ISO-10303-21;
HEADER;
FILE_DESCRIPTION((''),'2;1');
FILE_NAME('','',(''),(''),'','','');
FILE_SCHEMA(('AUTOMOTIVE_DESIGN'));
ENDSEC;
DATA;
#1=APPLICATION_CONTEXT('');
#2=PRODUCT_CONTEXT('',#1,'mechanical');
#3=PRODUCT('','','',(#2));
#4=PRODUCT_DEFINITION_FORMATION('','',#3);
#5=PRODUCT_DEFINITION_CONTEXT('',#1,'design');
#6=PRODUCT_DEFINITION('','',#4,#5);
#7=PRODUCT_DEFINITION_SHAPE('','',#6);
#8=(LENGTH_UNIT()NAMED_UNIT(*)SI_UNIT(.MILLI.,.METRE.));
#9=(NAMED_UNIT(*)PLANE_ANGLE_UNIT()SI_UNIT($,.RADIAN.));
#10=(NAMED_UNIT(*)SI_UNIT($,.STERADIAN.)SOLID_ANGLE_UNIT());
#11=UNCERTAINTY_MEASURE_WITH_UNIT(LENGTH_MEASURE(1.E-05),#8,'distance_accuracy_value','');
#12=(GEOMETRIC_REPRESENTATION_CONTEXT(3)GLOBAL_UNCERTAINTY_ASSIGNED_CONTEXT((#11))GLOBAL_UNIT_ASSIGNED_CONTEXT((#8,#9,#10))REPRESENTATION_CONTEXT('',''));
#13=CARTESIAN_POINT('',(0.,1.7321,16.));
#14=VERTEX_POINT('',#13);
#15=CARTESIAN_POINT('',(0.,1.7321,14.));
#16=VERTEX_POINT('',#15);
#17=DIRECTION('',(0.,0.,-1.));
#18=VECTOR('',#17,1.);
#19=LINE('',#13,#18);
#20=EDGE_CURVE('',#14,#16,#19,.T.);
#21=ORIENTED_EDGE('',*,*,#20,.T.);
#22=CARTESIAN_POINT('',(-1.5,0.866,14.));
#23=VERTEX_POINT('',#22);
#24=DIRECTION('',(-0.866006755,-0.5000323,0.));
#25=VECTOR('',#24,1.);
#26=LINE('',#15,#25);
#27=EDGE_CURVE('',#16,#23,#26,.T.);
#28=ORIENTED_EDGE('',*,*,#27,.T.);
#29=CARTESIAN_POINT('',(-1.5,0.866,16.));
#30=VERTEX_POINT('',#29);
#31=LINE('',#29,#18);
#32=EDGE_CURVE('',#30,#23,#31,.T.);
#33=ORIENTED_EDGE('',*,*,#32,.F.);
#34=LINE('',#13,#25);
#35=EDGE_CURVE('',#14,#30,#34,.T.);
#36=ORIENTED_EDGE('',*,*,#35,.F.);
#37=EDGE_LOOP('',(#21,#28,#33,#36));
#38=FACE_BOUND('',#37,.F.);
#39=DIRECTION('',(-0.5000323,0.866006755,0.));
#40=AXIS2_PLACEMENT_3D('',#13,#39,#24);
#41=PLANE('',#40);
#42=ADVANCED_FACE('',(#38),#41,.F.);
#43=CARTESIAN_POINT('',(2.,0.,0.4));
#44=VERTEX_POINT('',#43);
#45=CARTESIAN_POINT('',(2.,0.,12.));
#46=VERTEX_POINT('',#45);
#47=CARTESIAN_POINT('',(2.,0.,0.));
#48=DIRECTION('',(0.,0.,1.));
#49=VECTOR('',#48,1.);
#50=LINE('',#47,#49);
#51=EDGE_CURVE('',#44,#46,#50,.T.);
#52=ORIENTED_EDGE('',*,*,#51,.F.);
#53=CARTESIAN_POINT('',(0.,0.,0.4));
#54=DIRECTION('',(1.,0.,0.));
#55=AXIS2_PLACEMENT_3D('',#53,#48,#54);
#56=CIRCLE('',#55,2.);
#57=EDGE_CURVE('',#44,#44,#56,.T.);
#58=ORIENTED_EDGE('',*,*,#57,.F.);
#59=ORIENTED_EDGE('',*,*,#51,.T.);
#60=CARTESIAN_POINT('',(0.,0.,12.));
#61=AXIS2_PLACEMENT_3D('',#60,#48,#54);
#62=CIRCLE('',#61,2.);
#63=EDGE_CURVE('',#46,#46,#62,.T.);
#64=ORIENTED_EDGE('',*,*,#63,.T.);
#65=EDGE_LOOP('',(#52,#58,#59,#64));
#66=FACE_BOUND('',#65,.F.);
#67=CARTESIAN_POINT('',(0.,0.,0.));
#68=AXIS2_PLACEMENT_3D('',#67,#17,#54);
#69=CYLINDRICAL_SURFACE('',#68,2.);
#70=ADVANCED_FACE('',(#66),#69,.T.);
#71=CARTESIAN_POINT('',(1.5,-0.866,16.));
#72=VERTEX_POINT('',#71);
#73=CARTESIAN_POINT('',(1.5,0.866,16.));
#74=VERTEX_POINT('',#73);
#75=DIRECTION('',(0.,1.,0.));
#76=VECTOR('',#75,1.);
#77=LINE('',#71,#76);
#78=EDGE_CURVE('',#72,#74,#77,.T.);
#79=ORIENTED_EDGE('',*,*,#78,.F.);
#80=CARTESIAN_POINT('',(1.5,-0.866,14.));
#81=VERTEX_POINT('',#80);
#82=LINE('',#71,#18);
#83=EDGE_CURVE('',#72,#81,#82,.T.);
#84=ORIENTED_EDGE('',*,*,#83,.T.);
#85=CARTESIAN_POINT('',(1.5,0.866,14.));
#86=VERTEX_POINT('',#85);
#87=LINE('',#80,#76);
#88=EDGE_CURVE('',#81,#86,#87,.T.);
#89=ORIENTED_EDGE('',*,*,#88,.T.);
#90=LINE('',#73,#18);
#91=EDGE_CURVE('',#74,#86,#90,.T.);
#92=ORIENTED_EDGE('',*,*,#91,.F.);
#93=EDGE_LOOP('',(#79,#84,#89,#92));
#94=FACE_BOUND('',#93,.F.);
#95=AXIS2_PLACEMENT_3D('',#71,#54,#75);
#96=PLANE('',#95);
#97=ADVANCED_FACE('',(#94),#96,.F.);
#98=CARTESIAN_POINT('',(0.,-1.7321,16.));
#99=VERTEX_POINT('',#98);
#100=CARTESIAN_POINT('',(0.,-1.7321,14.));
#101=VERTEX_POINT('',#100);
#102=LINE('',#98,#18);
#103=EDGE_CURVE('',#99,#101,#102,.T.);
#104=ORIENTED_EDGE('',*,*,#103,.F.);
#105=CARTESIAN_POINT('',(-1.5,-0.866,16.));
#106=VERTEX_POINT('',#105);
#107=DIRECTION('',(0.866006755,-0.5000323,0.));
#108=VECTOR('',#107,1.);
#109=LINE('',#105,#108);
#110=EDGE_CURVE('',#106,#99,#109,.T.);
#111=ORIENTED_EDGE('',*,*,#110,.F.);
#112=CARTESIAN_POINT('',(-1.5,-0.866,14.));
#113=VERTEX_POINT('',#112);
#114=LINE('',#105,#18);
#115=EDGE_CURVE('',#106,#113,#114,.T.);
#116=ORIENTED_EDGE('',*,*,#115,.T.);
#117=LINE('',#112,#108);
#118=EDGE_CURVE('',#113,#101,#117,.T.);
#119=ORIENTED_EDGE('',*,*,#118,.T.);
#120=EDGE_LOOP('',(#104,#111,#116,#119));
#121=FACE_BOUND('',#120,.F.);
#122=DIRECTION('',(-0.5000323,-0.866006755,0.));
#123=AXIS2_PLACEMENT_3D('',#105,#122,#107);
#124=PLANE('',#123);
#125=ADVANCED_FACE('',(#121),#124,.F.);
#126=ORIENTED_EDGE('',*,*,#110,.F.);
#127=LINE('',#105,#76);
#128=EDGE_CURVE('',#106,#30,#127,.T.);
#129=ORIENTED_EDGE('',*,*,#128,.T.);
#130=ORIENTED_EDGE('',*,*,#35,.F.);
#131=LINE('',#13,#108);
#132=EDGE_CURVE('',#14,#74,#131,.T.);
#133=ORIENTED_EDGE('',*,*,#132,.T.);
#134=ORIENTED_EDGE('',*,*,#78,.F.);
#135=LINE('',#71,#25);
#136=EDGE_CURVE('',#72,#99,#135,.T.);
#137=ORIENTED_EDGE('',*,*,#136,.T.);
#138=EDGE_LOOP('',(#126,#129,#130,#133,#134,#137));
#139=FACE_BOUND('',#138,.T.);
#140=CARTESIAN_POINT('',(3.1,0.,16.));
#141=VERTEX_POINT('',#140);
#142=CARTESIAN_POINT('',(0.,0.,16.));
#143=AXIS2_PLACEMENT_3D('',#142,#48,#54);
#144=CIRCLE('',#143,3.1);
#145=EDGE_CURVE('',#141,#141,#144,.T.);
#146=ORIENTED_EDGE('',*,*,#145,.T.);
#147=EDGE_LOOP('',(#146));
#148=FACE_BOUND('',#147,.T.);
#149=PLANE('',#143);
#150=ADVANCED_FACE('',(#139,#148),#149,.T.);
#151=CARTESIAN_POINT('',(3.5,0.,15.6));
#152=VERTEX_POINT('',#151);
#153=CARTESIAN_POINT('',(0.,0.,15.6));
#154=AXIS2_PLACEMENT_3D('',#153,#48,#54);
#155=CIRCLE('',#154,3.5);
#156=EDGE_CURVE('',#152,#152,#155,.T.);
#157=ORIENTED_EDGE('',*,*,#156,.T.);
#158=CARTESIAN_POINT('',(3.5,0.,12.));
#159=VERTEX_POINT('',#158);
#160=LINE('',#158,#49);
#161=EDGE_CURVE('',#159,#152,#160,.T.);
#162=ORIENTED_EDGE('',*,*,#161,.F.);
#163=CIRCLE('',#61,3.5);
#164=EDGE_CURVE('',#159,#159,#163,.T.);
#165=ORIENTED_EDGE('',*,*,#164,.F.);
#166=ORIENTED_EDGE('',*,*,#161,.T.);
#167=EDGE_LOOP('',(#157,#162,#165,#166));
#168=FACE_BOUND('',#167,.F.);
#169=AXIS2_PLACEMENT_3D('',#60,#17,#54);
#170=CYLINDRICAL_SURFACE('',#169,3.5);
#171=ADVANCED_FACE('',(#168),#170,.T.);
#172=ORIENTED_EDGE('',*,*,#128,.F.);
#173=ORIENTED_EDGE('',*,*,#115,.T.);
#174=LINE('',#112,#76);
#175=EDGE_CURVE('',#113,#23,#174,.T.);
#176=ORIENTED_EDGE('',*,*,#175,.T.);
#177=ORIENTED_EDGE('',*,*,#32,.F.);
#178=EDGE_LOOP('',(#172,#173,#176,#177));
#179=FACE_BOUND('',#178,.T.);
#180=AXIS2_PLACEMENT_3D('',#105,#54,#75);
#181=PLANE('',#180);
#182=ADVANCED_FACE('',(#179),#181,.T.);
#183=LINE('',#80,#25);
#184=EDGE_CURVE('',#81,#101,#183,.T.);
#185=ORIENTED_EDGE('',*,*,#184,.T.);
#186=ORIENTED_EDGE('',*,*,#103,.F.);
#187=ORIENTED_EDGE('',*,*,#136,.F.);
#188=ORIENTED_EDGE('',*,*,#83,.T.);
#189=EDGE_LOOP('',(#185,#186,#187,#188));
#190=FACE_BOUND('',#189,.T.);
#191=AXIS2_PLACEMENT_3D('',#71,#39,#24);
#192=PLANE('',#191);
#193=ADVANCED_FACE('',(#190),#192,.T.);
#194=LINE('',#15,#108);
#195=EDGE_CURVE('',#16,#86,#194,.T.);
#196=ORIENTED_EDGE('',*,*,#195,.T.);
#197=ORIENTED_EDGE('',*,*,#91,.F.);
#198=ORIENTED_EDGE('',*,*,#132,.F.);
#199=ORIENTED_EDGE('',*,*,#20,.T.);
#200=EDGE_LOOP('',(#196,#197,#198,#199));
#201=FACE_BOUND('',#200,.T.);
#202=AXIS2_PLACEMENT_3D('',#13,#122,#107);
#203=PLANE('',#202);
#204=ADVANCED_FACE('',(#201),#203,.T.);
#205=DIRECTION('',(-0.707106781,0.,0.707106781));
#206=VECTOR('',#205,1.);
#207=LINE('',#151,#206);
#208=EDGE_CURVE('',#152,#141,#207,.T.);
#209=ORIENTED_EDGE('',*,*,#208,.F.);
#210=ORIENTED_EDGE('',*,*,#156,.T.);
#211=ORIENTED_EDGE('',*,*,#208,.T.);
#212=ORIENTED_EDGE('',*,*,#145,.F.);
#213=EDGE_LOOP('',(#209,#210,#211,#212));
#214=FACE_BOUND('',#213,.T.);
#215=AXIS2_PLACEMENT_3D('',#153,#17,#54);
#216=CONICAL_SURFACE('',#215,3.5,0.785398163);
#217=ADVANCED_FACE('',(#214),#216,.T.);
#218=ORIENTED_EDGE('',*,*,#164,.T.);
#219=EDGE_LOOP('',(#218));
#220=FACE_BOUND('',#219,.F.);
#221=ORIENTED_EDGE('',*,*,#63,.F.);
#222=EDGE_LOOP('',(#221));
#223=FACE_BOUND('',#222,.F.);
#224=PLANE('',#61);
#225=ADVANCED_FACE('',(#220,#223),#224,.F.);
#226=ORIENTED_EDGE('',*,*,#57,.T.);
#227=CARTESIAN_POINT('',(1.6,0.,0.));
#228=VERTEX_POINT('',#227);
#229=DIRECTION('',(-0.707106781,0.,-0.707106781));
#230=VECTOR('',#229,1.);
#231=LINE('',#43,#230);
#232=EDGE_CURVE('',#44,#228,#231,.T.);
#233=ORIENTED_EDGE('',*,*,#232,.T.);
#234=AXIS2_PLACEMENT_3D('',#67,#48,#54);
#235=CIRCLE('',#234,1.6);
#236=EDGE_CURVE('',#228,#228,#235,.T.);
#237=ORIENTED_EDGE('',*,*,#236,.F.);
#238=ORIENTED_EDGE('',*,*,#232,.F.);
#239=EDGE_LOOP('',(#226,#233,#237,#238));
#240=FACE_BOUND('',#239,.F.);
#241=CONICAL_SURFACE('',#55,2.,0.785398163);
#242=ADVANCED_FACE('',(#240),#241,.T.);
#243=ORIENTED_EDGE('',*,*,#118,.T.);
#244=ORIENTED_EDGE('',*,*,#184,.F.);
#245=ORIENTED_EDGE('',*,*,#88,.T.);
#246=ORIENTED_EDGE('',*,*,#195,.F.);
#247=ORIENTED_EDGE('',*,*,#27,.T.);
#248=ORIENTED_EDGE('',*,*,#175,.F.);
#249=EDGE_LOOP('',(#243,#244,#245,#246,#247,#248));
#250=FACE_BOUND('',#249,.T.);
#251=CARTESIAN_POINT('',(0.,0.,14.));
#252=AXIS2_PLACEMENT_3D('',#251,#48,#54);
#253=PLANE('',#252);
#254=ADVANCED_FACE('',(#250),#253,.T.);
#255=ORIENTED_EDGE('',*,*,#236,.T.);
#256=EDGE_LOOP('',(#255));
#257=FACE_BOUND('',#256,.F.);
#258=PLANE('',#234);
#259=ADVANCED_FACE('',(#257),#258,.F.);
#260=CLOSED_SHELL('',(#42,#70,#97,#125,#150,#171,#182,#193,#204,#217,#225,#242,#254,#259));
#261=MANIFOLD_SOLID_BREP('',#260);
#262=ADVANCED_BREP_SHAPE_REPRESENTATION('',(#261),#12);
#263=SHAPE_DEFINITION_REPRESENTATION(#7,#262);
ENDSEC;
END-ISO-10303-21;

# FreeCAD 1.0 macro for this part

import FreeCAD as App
import Part
import Sketcher
from FreeCAD import Vector
Q = App.Units.Quantity


def edges_at(feature, points):
    """Names of the edges that pass closest to the given points."""
    edges = feature.Shape.Edges
    near = lambda p: min(range(len(edges)), key=lambda i: edges[i].distToShape(Part.Vertex(*p))[0])
    return sorted({f"Edge{near(p) + 1}" for p in points})

doc = App.newDocument("Part")
body = doc.addObject("PartDesign::Body", "Body")

sketch1 = body.newObject("Sketcher::SketchObject", "Sketch")
sketch1.AttachmentSupport = (doc.getObject("XY_Plane"), [""])
sketch1.MapMode = "FlatFace"
sketch1.addGeometry(Part.Circle(Vector(0, 0, 0), Vector(0, 0, 1), 2), False)
sketch1.addConstraint(Sketcher.Constraint("Coincident", 0, 3, -1, 1))
sketch1.addConstraint(Sketcher.Constraint("Diameter", 0, Q("4 mm")))
pad1 = body.newObject("PartDesign::Pad", "Pad")
pad1.Profile = sketch1
pad1.Length = 12

sketch2 = body.newObject("Sketcher::SketchObject", "Sketch001")
sketch2.AttachmentSupport = (doc.getObject("XY_Plane"), [""])
sketch2.MapMode = "FlatFace"
sketch2.AttachmentOffset = App.Placement(Vector(0, 0, 12), App.Rotation())
sketch2.addGeometry(Part.Circle(Vector(0, 0, 0), Vector(0, 0, 1), 3.5), False)
sketch2.addConstraint(Sketcher.Constraint("Coincident", 0, 3, -1, 1))
sketch2.addConstraint(Sketcher.Constraint("Diameter", 0, Q("7 mm")))
pad2 = body.newObject("PartDesign::Pad", "Pad001")
pad2.Profile = sketch2
pad2.Length = 4

sketch3 = body.newObject("Sketcher::SketchObject", "Sketch002")
sketch3.AttachmentSupport = (doc.getObject("XY_Plane"), [""])
sketch3.MapMode = "FlatFace"
sketch3.AttachmentOffset = App.Placement(Vector(0, 0, 16), App.Rotation())
sketch3.addGeometry(Part.LineSegment(Vector(1.5, 0.9, 0), Vector(0, 1.7, 0)), False)
sketch3.addGeometry(Part.LineSegment(Vector(0, 1.7, 0), Vector(-1.5, 0.9, 0)), False)
sketch3.addGeometry(Part.LineSegment(Vector(-1.5, 0.9, 0), Vector(-1.5, -0.9, 0)), False)
sketch3.addGeometry(Part.LineSegment(Vector(-1.5, -0.9, 0), Vector(0, -1.7, 0)), False)
sketch3.addGeometry(Part.LineSegment(Vector(0, -1.7, 0), Vector(1.5, -0.9, 0)), False)
sketch3.addGeometry(Part.LineSegment(Vector(1.5, -0.9, 0), Vector(1.5, 0.9, 0)), False)
sketch3.addConstraint(Sketcher.Constraint("Coincident", 0, 2, 1, 1))
sketch3.addConstraint(Sketcher.Constraint("Coincident", 1, 2, 2, 1))
sketch3.addConstraint(Sketcher.Constraint("Coincident", 2, 2, 3, 1))
sketch3.addConstraint(Sketcher.Constraint("Coincident", 3, 2, 4, 1))
sketch3.addConstraint(Sketcher.Constraint("Coincident", 4, 2, 5, 1))
sketch3.addConstraint(Sketcher.Constraint("Coincident", 5, 2, 0, 1))
sketch3.addConstraint(Sketcher.Constraint("Vertical", 2))
sketch3.addConstraint(Sketcher.Constraint("Vertical", 5))
sketch3.addConstraint(Sketcher.Constraint("Symmetric", 0, 2, 3, 2, -1, 1))
sketch3.addConstraint(Sketcher.Constraint("Symmetric", 1, 2, 4, 2, -1, 1))
sketch3.addConstraint(Sketcher.Constraint("PointOnObject", 0, 2, -2))
sketch3.addConstraint(Sketcher.Constraint("Parallel", 0, 3))
sketch3.addConstraint(Sketcher.Constraint("Horizontal", 2, 2, 4, 2))
sketch3.addConstraint(Sketcher.Constraint("DistanceX", 2, 2, 4, 2, Q("3 mm")))
sketch3.addConstraint(Sketcher.Constraint("DistanceY", 2, 2, 2, 1, Q("1.732 mm")))
sketch3.addConstraint(Sketcher.Constraint("Distance", 0, Q("1.732 mm")))
pocket1 = body.newObject("PartDesign::Pocket", "Pocket")
pocket1.Profile = sketch3
pocket1.Length = 2
doc.recompute()

chamfer = body.newObject("PartDesign::Chamfer", "Chamfer")
chamfer.Base = (pocket1, edges_at(pocket1, [(-3.5, 0, 16), (-2, 0, 0)]))
chamfer.Size = 0.4

doc.recompute()
